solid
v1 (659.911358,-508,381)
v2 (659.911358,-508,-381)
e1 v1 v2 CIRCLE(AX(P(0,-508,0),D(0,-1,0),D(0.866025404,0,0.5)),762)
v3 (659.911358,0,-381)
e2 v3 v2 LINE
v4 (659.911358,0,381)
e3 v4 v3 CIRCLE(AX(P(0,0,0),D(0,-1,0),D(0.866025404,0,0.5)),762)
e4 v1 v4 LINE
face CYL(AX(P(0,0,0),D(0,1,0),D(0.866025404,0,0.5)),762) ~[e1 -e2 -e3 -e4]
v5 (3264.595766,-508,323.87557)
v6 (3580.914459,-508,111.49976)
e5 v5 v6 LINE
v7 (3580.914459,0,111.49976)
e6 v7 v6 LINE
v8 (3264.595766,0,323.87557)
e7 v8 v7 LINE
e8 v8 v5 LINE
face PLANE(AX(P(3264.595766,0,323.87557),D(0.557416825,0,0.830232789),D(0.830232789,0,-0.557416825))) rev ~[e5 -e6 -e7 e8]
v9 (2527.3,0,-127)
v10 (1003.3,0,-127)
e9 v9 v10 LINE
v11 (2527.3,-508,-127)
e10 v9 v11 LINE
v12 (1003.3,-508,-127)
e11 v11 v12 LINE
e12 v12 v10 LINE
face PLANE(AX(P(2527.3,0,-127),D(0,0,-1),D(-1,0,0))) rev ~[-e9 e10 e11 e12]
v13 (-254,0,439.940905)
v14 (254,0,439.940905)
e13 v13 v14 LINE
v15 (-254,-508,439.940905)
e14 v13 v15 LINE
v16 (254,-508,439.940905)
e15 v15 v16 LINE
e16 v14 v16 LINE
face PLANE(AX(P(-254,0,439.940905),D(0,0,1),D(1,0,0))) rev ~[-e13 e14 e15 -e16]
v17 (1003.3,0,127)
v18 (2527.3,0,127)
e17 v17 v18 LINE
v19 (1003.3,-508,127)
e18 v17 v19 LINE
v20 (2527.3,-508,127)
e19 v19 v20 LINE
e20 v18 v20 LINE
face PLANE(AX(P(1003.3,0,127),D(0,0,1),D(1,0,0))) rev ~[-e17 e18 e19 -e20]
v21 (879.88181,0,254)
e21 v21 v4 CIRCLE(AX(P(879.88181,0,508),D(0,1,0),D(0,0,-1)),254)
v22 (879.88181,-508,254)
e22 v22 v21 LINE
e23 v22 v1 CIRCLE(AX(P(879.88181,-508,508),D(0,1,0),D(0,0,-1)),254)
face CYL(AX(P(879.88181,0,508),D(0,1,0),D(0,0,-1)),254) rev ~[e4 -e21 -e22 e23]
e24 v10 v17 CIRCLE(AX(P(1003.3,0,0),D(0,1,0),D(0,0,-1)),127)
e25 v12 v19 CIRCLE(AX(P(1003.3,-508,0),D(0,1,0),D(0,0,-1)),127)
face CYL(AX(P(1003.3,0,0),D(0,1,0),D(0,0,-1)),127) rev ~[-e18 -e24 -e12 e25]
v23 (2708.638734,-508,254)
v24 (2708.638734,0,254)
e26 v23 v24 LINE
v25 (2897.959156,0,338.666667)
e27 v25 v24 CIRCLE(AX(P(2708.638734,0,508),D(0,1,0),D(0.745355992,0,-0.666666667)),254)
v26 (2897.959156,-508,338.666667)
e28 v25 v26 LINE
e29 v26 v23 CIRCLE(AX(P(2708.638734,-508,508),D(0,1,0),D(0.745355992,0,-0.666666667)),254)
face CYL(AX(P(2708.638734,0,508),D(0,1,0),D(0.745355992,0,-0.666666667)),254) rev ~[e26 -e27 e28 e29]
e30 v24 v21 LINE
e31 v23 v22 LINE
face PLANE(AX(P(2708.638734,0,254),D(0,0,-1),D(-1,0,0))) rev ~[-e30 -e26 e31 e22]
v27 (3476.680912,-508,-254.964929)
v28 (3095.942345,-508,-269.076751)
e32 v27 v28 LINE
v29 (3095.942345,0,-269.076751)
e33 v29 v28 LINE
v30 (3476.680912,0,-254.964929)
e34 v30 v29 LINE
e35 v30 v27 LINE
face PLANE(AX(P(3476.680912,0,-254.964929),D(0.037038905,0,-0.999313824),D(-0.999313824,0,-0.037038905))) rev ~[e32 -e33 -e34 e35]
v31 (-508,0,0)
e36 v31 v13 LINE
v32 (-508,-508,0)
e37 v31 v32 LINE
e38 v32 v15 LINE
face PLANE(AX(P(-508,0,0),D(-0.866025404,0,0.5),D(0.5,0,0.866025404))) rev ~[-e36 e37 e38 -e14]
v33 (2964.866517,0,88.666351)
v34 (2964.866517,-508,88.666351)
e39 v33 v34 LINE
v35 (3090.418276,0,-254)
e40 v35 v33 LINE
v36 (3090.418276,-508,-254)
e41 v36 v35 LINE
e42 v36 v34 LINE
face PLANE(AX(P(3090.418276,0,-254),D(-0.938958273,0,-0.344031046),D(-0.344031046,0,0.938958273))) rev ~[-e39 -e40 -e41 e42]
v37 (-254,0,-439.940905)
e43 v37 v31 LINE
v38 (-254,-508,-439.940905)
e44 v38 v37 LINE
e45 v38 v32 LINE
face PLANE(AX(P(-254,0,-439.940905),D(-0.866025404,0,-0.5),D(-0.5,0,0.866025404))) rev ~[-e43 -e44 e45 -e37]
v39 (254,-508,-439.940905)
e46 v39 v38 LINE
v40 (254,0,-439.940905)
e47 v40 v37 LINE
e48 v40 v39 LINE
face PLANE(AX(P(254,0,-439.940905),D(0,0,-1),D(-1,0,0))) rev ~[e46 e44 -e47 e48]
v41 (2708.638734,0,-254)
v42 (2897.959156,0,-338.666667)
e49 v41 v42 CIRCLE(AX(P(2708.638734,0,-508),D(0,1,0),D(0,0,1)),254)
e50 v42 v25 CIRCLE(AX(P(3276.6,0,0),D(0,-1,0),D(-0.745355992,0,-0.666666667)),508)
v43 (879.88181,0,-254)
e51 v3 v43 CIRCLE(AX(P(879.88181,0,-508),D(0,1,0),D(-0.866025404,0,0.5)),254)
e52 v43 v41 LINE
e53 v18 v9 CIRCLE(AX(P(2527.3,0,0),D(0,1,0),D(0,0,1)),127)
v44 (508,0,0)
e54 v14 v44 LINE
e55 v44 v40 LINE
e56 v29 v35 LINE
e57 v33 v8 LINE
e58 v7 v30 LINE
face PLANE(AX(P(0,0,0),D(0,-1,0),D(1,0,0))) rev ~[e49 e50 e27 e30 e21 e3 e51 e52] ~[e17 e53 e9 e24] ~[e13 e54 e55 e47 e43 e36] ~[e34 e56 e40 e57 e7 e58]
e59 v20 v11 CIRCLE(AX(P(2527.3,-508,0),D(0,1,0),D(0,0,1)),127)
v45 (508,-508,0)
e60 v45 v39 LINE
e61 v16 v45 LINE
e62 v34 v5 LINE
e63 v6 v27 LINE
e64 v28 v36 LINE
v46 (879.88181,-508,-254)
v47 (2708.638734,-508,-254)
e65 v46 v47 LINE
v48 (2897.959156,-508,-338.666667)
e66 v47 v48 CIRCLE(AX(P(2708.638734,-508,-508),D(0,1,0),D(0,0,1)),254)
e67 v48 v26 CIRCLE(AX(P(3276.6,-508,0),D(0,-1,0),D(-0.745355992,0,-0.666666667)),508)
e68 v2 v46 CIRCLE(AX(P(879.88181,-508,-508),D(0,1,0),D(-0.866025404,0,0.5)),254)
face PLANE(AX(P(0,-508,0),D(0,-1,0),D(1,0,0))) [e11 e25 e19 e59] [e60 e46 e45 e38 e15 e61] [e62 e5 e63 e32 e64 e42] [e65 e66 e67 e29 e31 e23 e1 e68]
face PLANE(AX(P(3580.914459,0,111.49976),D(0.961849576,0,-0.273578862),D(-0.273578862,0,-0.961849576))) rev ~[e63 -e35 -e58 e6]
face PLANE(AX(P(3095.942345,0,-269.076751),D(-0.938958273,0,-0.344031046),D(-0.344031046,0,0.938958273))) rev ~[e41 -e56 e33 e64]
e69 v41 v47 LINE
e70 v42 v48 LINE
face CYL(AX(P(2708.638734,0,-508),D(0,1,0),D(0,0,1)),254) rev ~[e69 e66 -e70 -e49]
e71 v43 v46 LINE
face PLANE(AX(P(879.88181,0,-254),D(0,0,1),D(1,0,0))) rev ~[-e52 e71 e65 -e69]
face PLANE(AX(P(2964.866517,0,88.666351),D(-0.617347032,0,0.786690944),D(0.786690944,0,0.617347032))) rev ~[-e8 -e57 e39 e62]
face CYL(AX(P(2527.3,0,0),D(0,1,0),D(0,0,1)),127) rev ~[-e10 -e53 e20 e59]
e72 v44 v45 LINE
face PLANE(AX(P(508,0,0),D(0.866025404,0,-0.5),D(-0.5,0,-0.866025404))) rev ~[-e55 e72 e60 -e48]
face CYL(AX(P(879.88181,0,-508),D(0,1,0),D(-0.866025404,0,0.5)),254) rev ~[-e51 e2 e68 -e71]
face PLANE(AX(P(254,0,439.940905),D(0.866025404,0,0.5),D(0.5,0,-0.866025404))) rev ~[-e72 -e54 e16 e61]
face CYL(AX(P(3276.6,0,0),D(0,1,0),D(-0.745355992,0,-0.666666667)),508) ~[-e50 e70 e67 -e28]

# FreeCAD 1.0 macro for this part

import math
import FreeCAD as App
import Part
import Sketcher

V = App.Vector
Q = App.Units.Quantity


def add_polygon(sketch, points):
    """Adds a closed chain of lines whose ends are joined by coincident constraints."""
    first, n = sketch.GeometryCount, len(points)
    for a, b in zip(points, points[1:] + points[:1]):
        sketch.addGeometry(Part.LineSegment(App.Vector(*a, 0), App.Vector(*b, 0)), False)
    for i in range(n):
        sketch.addConstraint(Sketcher.Constraint("Coincident", first + i, 2, first + (i + 1) % n, 1))

doc = App.newDocument("Part")
body = doc.addObject("PartDesign::Body", "Body")

# Sketch on XZ plane
sketch1 = body.newObject("Sketcher::SketchObject", "Sketch")
sketch1.AttachmentSupport = (doc.getObject("XZ_Plane"), [""])
sketch1.MapMode = "FlatFace"
sketch1.addGeometry(Part.ArcOfCircle(Part.Circle(V(0, 0, 0), V(0, 0, 1), 762), math.radians(30), math.radians(330)), False)  # 0
sketch1.addGeometry(Part.ArcOfCircle(Part.Circle(V(880, -508, 0), V(0, 0, 1), 254), math.radians(90), math.radians(150)), False)  # 1
sketch1.addGeometry(Part.LineSegment(V(880, -254, 0), V(2709, -254, 0)), False)  # 2
sketch1.addGeometry(Part.ArcOfCircle(Part.Circle(V(2709, -508, 0), V(0, 0, 1), 254), math.radians(42), math.radians(90)), False)  # 3
sketch1.addGeometry(Part.ArcOfCircle(Part.Circle(V(3277, 0, 0), V(0, 0, 1), 508), math.radians(-138), math.radians(138)), False)  # 4
sketch1.addGeometry(Part.ArcOfCircle(Part.Circle(V(2709, 508, 0), V(0, 0, 1), 254), math.radians(-90), math.radians(-42)), False)  # 5
sketch1.addGeometry(Part.LineSegment(V(2709, 254, 0), V(880, 254, 0)), False)  # 6
sketch1.addGeometry(Part.ArcOfCircle(Part.Circle(V(880, 508, 0), V(0, 0, 1), 254), math.radians(-150), math.radians(-90)), False)  # 7
add_polygon(sketch1, [(-254, -440), (-508, 0), (-254, 440), (254, 440), (508, 0), (254, -440)])  # lines 8-13
sketch1.addGeometry(Part.ArcOfCircle(Part.Circle(V(1003, 0, 0), V(0, 0, 1), 127), math.radians(90), math.radians(270)), False)  # 14
sketch1.addGeometry(Part.LineSegment(V(1003, 127, 0), V(2527, 127, 0)), False)  # 15
sketch1.addGeometry(Part.ArcOfCircle(Part.Circle(V(2527, 0, 0), V(0, 0, 1), 127), math.radians(-90), math.radians(90)), False)  # 16
sketch1.addGeometry(Part.LineSegment(V(2527, -127, 0), V(1003, -127, 0)), False)  # 17
add_polygon(sketch1, [(3090, -254), (2965, 89), (3265, 324), (3581, 111), (3477, -255), (3096, -269)])  # lines 18-23
sketch1.addConstraint([
    Sketcher.Constraint("Tangent", 0, 2, 1, 2),
    Sketcher.Constraint("Tangent", 1, 1, 2, 1),
    Sketcher.Constraint("Tangent", 2, 2, 3, 2),
    Sketcher.Constraint("Tangent", 3, 1, 4, 1),
    Sketcher.Constraint("Tangent", 4, 2, 5, 2),
    Sketcher.Constraint("Tangent", 5, 1, 6, 1),
    Sketcher.Constraint("Tangent", 6, 2, 7, 2),
    Sketcher.Constraint("Tangent", 7, 1, 0, 1),
    Sketcher.Constraint("Tangent", 14, 1, 15, 1),
    Sketcher.Constraint("Tangent", 15, 2, 16, 2),
    Sketcher.Constraint("Tangent", 16, 1, 17, 1),
    Sketcher.Constraint("Tangent", 17, 2, 14, 2),
    Sketcher.Constraint("Horizontal", 2),
    Sketcher.Constraint("Horizontal", 6),
    Sketcher.Constraint("Horizontal", 10),
    Sketcher.Constraint("Horizontal", 13),
    Sketcher.Constraint("Horizontal", 15),
    Sketcher.Constraint("Horizontal", 17),
    Sketcher.Constraint("Coincident", 0, 3, -1, 1),
    Sketcher.Constraint("Equal", 1, 3),
    Sketcher.Constraint("Equal", 3, 5),
    Sketcher.Constraint("Equal", 5, 7),
    Sketcher.Constraint("Symmetric", 8, 2, 11, 2, -1, 1),
    Sketcher.Constraint("Symmetric", 9, 2, 12, 2, -1, 1),
    Sketcher.Constraint("Symmetric", 3, 3, 5, 3, -1),
    Sketcher.Constraint("PointOnObject", 14, 3, -1),
    Sketcher.Constraint("PointOnObject", 8, 2, -1),
    Sketcher.Constraint("Parallel", 8, 11),
    Sketcher.Constraint("Parallel", 18, 23),
    Sketcher.Constraint("Horizontal", 2, 2, 23, 2),
    Sketcher.Constraint("Vertical", 10, 2, 12, 2),
    Sketcher.Constraint("Equal", 19, 20),
    Sketcher.Constraint("Equal", 20, 21),
    Sketcher.Constraint("Equal", 21, 22),
    Sketcher.Constraint("Radius", 0, Q("30 in")),
    Sketcher.Constraint("Radius", 1, Q("10 in")),
    Sketcher.Constraint("Radius", 4, Q("20 in")),
    Sketcher.Constraint("Radius", 14, Q("5 in")),
    Sketcher.Constraint("DistanceX", 10, 1, 10, 2, Q("20 in")),
    Sketcher.Constraint("DistanceX", 15, 1, 15, 2, Q("60 in")),
    Sketcher.Constraint("Distance", 8, Q("20 in")),
    Sketcher.Constraint("Distance", 19, Q("15 in")),
    Sketcher.Constraint("DistanceY", 1, 3, -1, 1, Q("20 in")),
    Sketcher.Constraint("DistanceX", -1, 1, 4, 3, Q("129 in")),
    Sketcher.Constraint("DistanceX", 8, 2, -1, 1, Q("20 in")),
    Sketcher.Constraint("DistanceX", -1, 1, 14, 3, Q("39.5 in")),
    Sketcher.Constraint("DistanceY", 21, 2, 19, 2, 578.840499),
    Sketcher.Constraint("Distance", 18, 364.943108),
    Sketcher.Constraint("Distance", 23, 16.056892),
    Sketcher.Constraint("DistanceY", -1, 1, 18, 2, 88.666351),
    Sketcher.Constraint("DistanceY", -1, 1, 19, 2, 323.87557),
    Sketcher.Constraint("DistanceX", -1, 1, 20, 2, 3580.914459),
])
pad1 = body.newObject("PartDesign::Pad", "Pad")
pad1.Profile = sketch1
pad1.Length = Q("1 in")

# Sketch on XZ plane
sketch2 = body.newObject("Sketcher::SketchObject", "Sketch001")
sketch2.AttachmentSupport = (doc.getObject("XZ_Plane"), [""])
sketch2.MapMode = "FlatFace"
sketch2.addGeometry(Part.ArcOfCircle(Part.Circle(V(0, 0, 0), V(0, 0, 1), 762), math.radians(30), math.radians(330)), False)  # 0
sketch2.addGeometry(Part.ArcOfCircle(Part.Circle(V(880, -508, 0), V(0, 0, 1), 254), math.radians(90), math.radians(150)), False)  # 1
sketch2.addGeometry(Part.LineSegment(V(880, -254, 0), V(2709, -254, 0)), False)  # 2
sketch2.addGeometry(Part.ArcOfCircle(Part.Circle(V(2709, -508, 0), V(0, 0, 1), 254), math.radians(42), math.radians(90)), False)  # 3
sketch2.addGeometry(Part.ArcOfCircle(Part.Circle(V(3277, 0, 0), V(0, 0, 1), 508), math.radians(-138), math.radians(138)), False)  # 4
sketch2.addGeometry(Part.ArcOfCircle(Part.Circle(V(2709, 508, 0), V(0, 0, 1), 254), math.radians(-90), math.radians(-42)), False)  # 5
sketch2.addGeometry(Part.LineSegment(V(2709, 254, 0), V(880, 254, 0)), False)  # 6
sketch2.addGeometry(Part.ArcOfCircle(Part.Circle(V(880, 508, 0), V(0, 0, 1), 254), math.radians(-150), math.radians(-90)), False)  # 7
add_polygon(sketch2, [(-254, -440), (-508, 0), (-254, 440), (254, 440), (508, 0), (254, -440)])  # lines 8-13
sketch2.addGeometry(Part.ArcOfCircle(Part.Circle(V(1003, 0, 0), V(0, 0, 1), 127), math.radians(90), math.radians(270)), False)  # 14
sketch2.addGeometry(Part.LineSegment(V(1003, 127, 0), V(2527, 127, 0)), False)  # 15
sketch2.addGeometry(Part.ArcOfCircle(Part.Circle(V(2527, 0, 0), V(0, 0, 1), 127), math.radians(-90), math.radians(90)), False)  # 16
sketch2.addGeometry(Part.LineSegment(V(2527, -127, 0), V(1003, -127, 0)), False)  # 17
add_polygon(sketch2, [(3090, -254), (2965, 89), (3265, 324), (3581, 111), (3477, -255), (3096, -269)])  # lines 18-23
sketch2.addConstraint([
    Sketcher.Constraint("Tangent", 0, 2, 1, 2),
    Sketcher.Constraint("Tangent", 1, 1, 2, 1),
    Sketcher.Constraint("Tangent", 2, 2, 3, 2),
    Sketcher.Constraint("Tangent", 3, 1, 4, 1),
    Sketcher.Constraint("Tangent", 4, 2, 5, 2),
    Sketcher.Constraint("Tangent", 5, 1, 6, 1),
    Sketcher.Constraint("Tangent", 6, 2, 7, 2),
    Sketcher.Constraint("Tangent", 7, 1, 0, 1),
    Sketcher.Constraint("Tangent", 14, 1, 15, 1),
    Sketcher.Constraint("Tangent", 15, 2, 16, 2),
    Sketcher.Constraint("Tangent", 16, 1, 17, 1),
    Sketcher.Constraint("Tangent", 17, 2, 14, 2),
    Sketcher.Constraint("Horizontal", 2),
    Sketcher.Constraint("Horizontal", 6),
    Sketcher.Constraint("Horizontal", 10),
    Sketcher.Constraint("Horizontal", 13),
    Sketcher.Constraint("Horizontal", 15),
    Sketcher.Constraint("Horizontal", 17),
    Sketcher.Constraint("Coincident", 0, 3, -1, 1),
    Sketcher.Constraint("Equal", 1, 3),
    Sketcher.Constraint("Equal", 3, 5),
    Sketcher.Constraint("Equal", 5, 7),
    Sketcher.Constraint("Symmetric", 8, 2, 11, 2, -1, 1),
    Sketcher.Constraint("Symmetric", 9, 2, 12, 2, -1, 1),
    Sketcher.Constraint("Symmetric", 3, 3, 5, 3, -1),
    Sketcher.Constraint("PointOnObject", 14, 3, -1),
    Sketcher.Constraint("PointOnObject", 8, 2, -1),
    Sketcher.Constraint("Parallel", 8, 11),
    Sketcher.Constraint("Parallel", 18, 23),
    Sketcher.Constraint("Horizontal", 2, 2, 23, 2),
    Sketcher.Constraint("Vertical", 10, 2, 12, 2),
    Sketcher.Constraint("Equal", 19, 20),
    Sketcher.Constraint("Equal", 20, 21),
    Sketcher.Constraint("Equal", 21, 22),
    Sketcher.Constraint("Radius", 0, Q("30 in")),
    Sketcher.Constraint("Radius", 1, Q("10 in")),
    Sketcher.Constraint("Radius", 4, Q("20 in")),
    Sketcher.Constraint("Radius", 14, Q("5 in")),
    Sketcher.Constraint("DistanceX", 10, 1, 10, 2, Q("20 in")),
    Sketcher.Constraint("DistanceX", 15, 1, 15, 2, Q("60 in")),
    Sketcher.Constraint("Distance", 8, Q("20 in")),
    Sketcher.Constraint("Distance", 19, Q("15 in")),
    Sketcher.Constraint("DistanceY", 1, 3, -1, 1, Q("20 in")),
    Sketcher.Constraint("DistanceX", -1, 1, 4, 3, Q("129 in")),
    Sketcher.Constraint("DistanceX", 8, 2, -1, 1, Q("20 in")),
    Sketcher.Constraint("DistanceX", -1, 1, 14, 3, Q("39.5 in")),
    Sketcher.Constraint("DistanceY", 21, 2, 19, 2, 578.840499),
    Sketcher.Constraint("Distance", 18, 364.943108),
    Sketcher.Constraint("Distance", 23, 16.056892),
    Sketcher.Constraint("DistanceY", -1, 1, 18, 2, 88.666351),
    Sketcher.Constraint("DistanceY", -1, 1, 19, 2, 323.87557),
    Sketcher.Constraint("DistanceX", -1, 1, 20, 2, 3580.914459),
])
pad2 = body.newObject("PartDesign::Pad", "Pad001")
pad2.Profile = sketch2
pad2.Length = Q("20 in")

doc.recompute()
